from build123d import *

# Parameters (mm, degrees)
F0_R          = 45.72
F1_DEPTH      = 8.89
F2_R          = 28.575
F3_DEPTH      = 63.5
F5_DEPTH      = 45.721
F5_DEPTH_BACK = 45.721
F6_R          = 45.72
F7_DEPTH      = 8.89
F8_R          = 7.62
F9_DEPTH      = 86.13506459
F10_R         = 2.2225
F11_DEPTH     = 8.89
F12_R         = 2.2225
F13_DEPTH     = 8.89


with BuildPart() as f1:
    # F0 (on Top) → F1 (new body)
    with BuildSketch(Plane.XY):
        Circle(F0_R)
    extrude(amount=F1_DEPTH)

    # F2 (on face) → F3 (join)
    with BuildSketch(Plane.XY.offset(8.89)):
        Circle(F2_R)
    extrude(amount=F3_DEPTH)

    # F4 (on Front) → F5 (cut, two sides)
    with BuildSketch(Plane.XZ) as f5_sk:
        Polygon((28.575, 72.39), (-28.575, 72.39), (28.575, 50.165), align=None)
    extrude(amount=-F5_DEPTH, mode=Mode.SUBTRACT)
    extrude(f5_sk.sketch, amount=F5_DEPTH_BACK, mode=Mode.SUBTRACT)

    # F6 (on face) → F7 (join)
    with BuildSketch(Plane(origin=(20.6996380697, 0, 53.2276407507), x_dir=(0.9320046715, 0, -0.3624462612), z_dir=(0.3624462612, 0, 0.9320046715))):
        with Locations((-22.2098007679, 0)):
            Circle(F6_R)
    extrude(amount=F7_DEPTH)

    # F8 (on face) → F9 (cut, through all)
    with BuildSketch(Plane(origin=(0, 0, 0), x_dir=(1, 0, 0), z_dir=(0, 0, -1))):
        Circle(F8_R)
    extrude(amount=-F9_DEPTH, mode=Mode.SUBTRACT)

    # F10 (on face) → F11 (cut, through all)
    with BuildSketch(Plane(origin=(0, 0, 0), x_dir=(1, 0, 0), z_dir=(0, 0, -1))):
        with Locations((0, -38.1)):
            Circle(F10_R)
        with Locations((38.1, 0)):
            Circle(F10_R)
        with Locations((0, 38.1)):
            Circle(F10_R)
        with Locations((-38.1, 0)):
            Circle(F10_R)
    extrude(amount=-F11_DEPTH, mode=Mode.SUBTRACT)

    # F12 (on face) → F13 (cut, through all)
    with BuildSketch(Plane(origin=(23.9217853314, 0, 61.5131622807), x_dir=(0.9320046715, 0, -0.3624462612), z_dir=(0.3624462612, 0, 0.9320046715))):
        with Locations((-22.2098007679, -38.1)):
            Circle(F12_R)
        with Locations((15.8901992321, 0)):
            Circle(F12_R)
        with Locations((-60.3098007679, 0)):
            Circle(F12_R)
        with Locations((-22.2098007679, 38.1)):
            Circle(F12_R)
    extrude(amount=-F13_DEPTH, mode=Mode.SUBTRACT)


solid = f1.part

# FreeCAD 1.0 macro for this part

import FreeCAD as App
import Part
import Sketcher
Q = App.Units.Quantity


def add_polygon(sketch, points):
    """Adds a closed chain of lines whose ends are joined by coincident constraints."""
    first, n = sketch.GeometryCount, len(points)
    for a, b in zip(points, points[1:] + points[:1]):
        sketch.addGeometry(Part.LineSegment(App.Vector(*a, 0), App.Vector(*b, 0)), False)
    for i in range(n):
        sketch.addConstraint(Sketcher.Constraint("Coincident", first + i, 2, first + (i + 1) % n, 1))

doc = App.newDocument("Part")
body = doc.addObject("PartDesign::Body", "Body")

# Sketch on XY plane
sketch1 = doc.addObject("Sketcher::SketchObject", "Sketch")
body.addObject(sketch1)
sketch1.AttachmentSupport = (doc.XY_Plane, [""])
sketch1.MapMode = "FlatFace"
sketch1.addGeometry(Part.Circle(App.Vector(0, 0, 0), App.Vector(0, 0, 1), 45.72), False)
sketch1.addConstraint(Sketcher.Constraint("Coincident", 0, 3, -1, 1))
sketch1.addConstraint(Sketcher.Constraint("Diameter", 0, Q("3.6 in")))
pad1 = doc.addObject("PartDesign::Pad", "Pad")
body.addObject(pad1)
pad1.Profile = sketch1
pad1.Length = Q("0.35 in")

# Sketch on XY plane
sketch2 = doc.addObject("Sketcher::SketchObject", "Sketch001")
body.addObject(sketch2)
sketch2.AttachmentSupport = (doc.XY_Plane, [""])
sketch2.MapMode = "FlatFace"
sketch2.AttachmentOffset = App.Placement(App.Vector(0, 0, 0.35 * 25.4), App.Rotation())
sketch2.addGeometry(Part.Circle(App.Vector(0, 0, 0), App.Vector(0, 0, 1), 28.575), False)
sketch2.addConstraint(Sketcher.Constraint("Coincident", 0, 3, -1, 1))
sketch2.addConstraint(Sketcher.Constraint("Diameter", 0, Q("2.25 in")))
pad2 = doc.addObject("PartDesign::Pad", "Pad001")
body.addObject(pad2)
pad2.Profile = sketch2
pad2.Length = Q("2.5 in")

# Sketch on XZ plane
sketch3 = doc.addObject("Sketcher::SketchObject", "Sketch002")
body.addObject(sketch3)
sketch3.AttachmentSupport = (doc.XZ_Plane, [""])
sketch3.MapMode = "FlatFace"
add_polygon(sketch3, [(28.575, 72.39), (-28.575, 72.39), (28.575, 50.165)])  # lines 0-2
sketch3.addConstraint(Sketcher.Constraint("Horizontal", 0))
sketch3.addConstraint(Sketcher.Constraint("Vertical", 2))
sketch3.addConstraint(Sketcher.Constraint("DistanceX", 0, 2, 0, 1, Q("2.25 in")))
sketch3.addConstraint(Sketcher.Constraint("DistanceY", 2, 1, 2, 2, Q("0.875 in")))
sketch3.addConstraint(Sketcher.Constraint("DistanceY", -1, 1, 0, 2, Q("2.85 in")))
sketch3.addConstraint(Sketcher.Constraint("DistanceX", 0, 2, -1, 1, Q("1.125 in")))
pocket1 = doc.addObject("PartDesign::Pocket", "Pocket")
body.addObject(pocket1)
pocket1.Profile = sketch3
pocket1.Type = "ThroughAll"
pocket1.Midplane = True

# Sketch on an angled plane
sketch4 = doc.addObject("Sketcher::SketchObject", "Sketch003")
body.addObject(sketch4)
sketch4.Placement = App.Placement(App.Vector(20.699638, 0, 53.227641), App.Rotation(App.Vector(0.932004672, 0, -0.362446261), App.Vector(0, 1.000000001, 0), App.Vector(0.362446261, 0, 0.932004672), "ZXY"))
sketch4.addGeometry(Part.Circle(App.Vector(-22.209801, 0, 0), App.Vector(0, 0, 1), 45.72), False)
sketch4.addConstraint(Sketcher.Constraint("PointOnObject", 0, 3, -1))
sketch4.addConstraint(Sketcher.Constraint("Diameter", 0, Q("3.6 in")))
sketch4.addConstraint(Sketcher.Constraint("DistanceX", 0, 3, -1, 1, 22.209801))
pad3 = doc.addObject("PartDesign::Pad", "Pad002")
body.addObject(pad3)
pad3.Profile = sketch4
pad3.Length = Q("0.35 in")

# Sketch on XY plane
sketch5 = doc.addObject("Sketcher::SketchObject", "Sketch004")
body.addObject(sketch5)
sketch5.AttachmentSupport = (doc.XY_Plane, [""])
sketch5.MapMode = "FlatFace"
sketch5.addGeometry(Part.Circle(App.Vector(0, 0, 0), App.Vector(0, 0, 1), 7.62), False)
sketch5.addConstraint(Sketcher.Constraint("Coincident", 0, 3, -1, 1))
sketch5.addConstraint(Sketcher.Constraint("Diameter", 0, Q("0.6 in")))
pocket2 = doc.addObject("PartDesign::Pocket", "Pocket001")
body.addObject(pocket2)
pocket2.Profile = sketch5
pocket2.Type = "ThroughAll"
pocket2.Reversed = True

# Sketch on XY plane
sketch6 = doc.addObject("Sketcher::SketchObject", "Sketch005")
body.addObject(sketch6)
sketch6.AttachmentSupport = (doc.XY_Plane, [""])
sketch6.MapMode = "FlatFace"
sketch6.addGeometry(Part.Circle(App.Vector(0, 38.1, 0), App.Vector(0, 0, 1), 2.2225), False)
sketch6.addGeometry(Part.Circle(App.Vector(38.1, 0, 0), App.Vector(0, 0, 1), 2.2225), False)
sketch6.addGeometry(Part.Circle(App.Vector(0, -38.1, 0), App.Vector(0, 0, 1), 2.2225), False)
sketch6.addGeometry(Part.Circle(App.Vector(-38.1, 0, 0), App.Vector(0, 0, 1), 2.2225), False)
sketch6.addConstraint(Sketcher.Constraint("Equal", 0, 1))
sketch6.addConstraint(Sketcher.Constraint("Equal", 1, 2))
sketch6.addConstraint(Sketcher.Constraint("Equal", 2, 3))
sketch6.addConstraint(Sketcher.Constraint("Symmetric", 0, 3, 2, 3, -1, 1))
sketch6.addConstraint(Sketcher.Constraint("Symmetric", 1, 3, 3, 3, -1, 1))
sketch6.addConstraint(Sketcher.Constraint("PointOnObject", 0, 3, -2))
sketch6.addConstraint(Sketcher.Constraint("PointOnObject", 1, 3, -1))
sketch6.addConstraint(Sketcher.Constraint("Diameter", 0, Q("0.175 in")))
sketch6.addConstraint(Sketcher.Constraint("DistanceY", 2, 3, 0, 3, Q("3 in")))
sketch6.addConstraint(Sketcher.Constraint("DistanceX", 3, 3, 1, 3, Q("3 in")))
pocket3 = doc.addObject("PartDesign::Pocket", "Pocket002")
body.addObject(pocket3)
pocket3.Profile = sketch6
pocket3.Length = Q("0.35 in")
pocket3.Reversed = True

# Sketch on an angled plane
sketch7 = doc.addObject("Sketcher::SketchObject", "Sketch006")
body.addObject(sketch7)
sketch7.Placement = App.Placement(App.Vector(23.921785, 0, 61.513162), App.Rotation(App.Vector(0.932004672, 0, -0.362446261), App.Vector(0, 1.000000001, 0), App.Vector(0.362446261, 0, 0.932004672), "ZXY"))
sketch7.addGeometry(Part.Circle(App.Vector(-22.209801, -38.1, 0), App.Vector(0, 0, 1), 2.2225), False)
sketch7.addGeometry(Part.Circle(App.Vector(15.890199, 0, 0), App.Vector(0, 0, 1), 2.2225), False)
sketch7.addGeometry(Part.Circle(App.Vector(-60.309801, 0, 0), App.Vector(0, 0, 1), 2.2225), False)
sketch7.addGeometry(Part.Circle(App.Vector(-22.209801, 38.1, 0), App.Vector(0, 0, 1), 2.2225), False)
sketch7.addConstraint(Sketcher.Constraint("Equal", 0, 1))
sketch7.addConstraint(Sketcher.Constraint("Equal", 1, 2))
sketch7.addConstraint(Sketcher.Constraint("Equal", 2, 3))
sketch7.addConstraint(Sketcher.Constraint("Symmetric", 0, 3, 3, 3, -1))
sketch7.addConstraint(Sketcher.Constraint("PointOnObject", 1, 3, -1))
sketch7.addConstraint(Sketcher.Constraint("PointOnObject", 2, 3, -1))
sketch7.addConstraint(Sketcher.Constraint("Diameter", 0, Q("0.175 in")))
sketch7.addConstraint(Sketcher.Constraint("DistanceX", 2, 3, 1, 3, Q("3 in")))
sketch7.addConstraint(Sketcher.Constraint("DistanceY", 0, 3, 3, 3, Q("3 in")))
sketch7.addConstraint(Sketcher.Constraint("DistanceX", 0, 3, 1, 3, Q("1.5 in")))
sketch7.addConstraint(Sketcher.Constraint("DistanceX", 0, 3, -1, 1, 22.209801))
pocket4 = doc.addObject("PartDesign::Pocket", "Pocket003")
body.addObject(pocket4)
pocket4.Profile = sketch7
pocket4.Length = Q("0.35 in")

doc.recompute()
